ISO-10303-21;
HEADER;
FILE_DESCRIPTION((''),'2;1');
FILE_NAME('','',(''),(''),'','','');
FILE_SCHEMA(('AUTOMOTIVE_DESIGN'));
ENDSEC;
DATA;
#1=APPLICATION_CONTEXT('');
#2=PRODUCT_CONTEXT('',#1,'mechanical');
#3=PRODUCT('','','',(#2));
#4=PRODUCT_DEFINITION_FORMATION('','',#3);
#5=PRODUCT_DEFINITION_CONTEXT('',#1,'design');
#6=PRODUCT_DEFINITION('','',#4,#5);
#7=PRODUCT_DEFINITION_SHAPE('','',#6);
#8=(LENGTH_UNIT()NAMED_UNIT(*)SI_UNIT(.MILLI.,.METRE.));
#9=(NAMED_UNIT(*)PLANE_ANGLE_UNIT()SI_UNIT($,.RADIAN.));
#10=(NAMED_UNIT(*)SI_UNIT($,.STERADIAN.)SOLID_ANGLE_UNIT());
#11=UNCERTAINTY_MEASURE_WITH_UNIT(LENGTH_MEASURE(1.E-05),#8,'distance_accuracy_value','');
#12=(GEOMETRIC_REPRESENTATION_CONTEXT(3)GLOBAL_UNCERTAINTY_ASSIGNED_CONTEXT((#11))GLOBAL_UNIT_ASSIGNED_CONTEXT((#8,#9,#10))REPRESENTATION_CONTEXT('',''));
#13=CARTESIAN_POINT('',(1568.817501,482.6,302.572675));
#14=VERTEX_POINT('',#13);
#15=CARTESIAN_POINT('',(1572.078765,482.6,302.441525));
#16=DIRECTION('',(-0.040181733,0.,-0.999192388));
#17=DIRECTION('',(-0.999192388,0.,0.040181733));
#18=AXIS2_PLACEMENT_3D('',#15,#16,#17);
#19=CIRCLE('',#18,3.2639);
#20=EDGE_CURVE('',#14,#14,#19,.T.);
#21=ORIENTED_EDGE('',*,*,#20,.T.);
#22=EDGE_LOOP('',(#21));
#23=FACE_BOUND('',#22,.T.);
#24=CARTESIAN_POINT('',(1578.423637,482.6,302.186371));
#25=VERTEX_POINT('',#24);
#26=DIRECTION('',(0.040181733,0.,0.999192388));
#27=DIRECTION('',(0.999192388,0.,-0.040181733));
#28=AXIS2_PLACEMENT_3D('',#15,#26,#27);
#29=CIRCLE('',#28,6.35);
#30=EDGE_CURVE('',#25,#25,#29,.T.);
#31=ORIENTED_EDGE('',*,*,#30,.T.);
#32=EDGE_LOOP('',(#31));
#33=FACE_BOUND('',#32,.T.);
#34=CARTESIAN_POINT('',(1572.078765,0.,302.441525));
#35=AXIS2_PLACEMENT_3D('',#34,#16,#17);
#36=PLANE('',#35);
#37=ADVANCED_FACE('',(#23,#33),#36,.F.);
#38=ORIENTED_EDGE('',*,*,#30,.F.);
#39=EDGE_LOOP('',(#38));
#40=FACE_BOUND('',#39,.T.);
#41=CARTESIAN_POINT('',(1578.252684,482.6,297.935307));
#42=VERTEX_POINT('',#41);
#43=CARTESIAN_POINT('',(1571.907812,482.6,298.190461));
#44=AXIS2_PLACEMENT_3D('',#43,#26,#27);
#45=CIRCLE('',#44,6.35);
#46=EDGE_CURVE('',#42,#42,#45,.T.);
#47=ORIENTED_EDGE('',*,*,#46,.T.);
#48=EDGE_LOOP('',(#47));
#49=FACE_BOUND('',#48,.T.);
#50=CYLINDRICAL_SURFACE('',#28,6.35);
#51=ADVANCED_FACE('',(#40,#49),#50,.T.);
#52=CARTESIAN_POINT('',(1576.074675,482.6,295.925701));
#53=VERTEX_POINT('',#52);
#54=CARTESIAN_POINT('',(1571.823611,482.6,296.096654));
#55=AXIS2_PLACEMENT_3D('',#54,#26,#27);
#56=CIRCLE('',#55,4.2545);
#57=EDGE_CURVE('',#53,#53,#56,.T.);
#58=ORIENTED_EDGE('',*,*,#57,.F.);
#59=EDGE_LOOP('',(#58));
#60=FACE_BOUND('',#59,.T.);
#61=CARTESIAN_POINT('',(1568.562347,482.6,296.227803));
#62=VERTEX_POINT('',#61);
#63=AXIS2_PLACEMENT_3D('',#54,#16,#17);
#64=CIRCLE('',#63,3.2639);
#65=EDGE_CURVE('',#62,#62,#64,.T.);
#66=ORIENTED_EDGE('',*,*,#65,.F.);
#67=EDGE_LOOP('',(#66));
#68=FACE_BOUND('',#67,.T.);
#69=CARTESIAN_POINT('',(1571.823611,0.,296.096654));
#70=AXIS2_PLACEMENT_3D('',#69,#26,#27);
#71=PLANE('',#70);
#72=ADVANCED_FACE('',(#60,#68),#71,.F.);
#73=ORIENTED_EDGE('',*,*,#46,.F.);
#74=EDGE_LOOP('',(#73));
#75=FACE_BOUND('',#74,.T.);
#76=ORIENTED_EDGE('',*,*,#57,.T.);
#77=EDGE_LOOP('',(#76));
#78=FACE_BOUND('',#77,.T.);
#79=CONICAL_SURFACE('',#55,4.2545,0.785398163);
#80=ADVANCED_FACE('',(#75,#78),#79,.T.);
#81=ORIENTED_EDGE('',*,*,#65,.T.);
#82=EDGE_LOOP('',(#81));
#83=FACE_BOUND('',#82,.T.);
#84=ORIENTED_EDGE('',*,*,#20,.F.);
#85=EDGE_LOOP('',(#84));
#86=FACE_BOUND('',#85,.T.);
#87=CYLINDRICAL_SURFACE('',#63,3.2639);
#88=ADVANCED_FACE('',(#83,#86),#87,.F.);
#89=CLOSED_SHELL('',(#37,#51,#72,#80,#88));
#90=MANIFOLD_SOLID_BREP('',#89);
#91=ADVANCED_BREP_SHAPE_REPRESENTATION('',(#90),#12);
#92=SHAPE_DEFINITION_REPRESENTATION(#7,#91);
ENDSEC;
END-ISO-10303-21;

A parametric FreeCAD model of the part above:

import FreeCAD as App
import Part
import Sketcher
Q = App.Units.Quantity

doc = App.newDocument("Part")
params = doc.addObject("Spreadsheet::Sheet", "Params")
for row, (alias, value) in enumerate([
    ("sketch1_width", "0.25 in"),
    ("revolution_angle", "360 deg"),
    ("sketch2_diameter", "0.257 in"),
    ("hole_diameter", "0.257 in"),
], start=1):
    params.set(f"A{row}", alias)
    params.set(f"B{row}", "=" + value)
    params.setAlias(f"B{row}", alias)

body = doc.addObject("PartDesign::Body", "Body")

# Sketch on an angled plane
sketch1 = body.newObject("Sketcher::SketchObject", "Sketch")
sketch1.Placement = App.Placement(App.Vector(1571.632246, 520.7, 291.338), App.Rotation(App.Vector(-0.040181733, 0, -0.999192388), App.Vector(0, 1, 0), App.Vector(0.999192388, 0, -0.040181733), "ZXY"))
sketch1.addGeometry([
    Part.LineSegment(App.Vector(-6.9, -31.7, 0), App.Vector(-11.1, -31.7, 0)),  # 0
    Part.LineSegment(App.Vector(-11.1, -31.7, 0), App.Vector(-11.1, -38.1, 0)),  # 1
    Part.LineSegment(App.Vector(-11.1, -38.1, 0), App.Vector(-4.8, -38.1, 0)),  # 2
    Part.LineSegment(App.Vector(-4.8, -38.1, 0), App.Vector(-4.8, -33.8, 0)),  # 3
    Part.LineSegment(App.Vector(-4.8, -33.8, 0), App.Vector(-6.9, -31.7, 0)),  # 4
], False)
sketch1.addGeometry(Part.LineSegment(App.Vector(-11.1, -38.1, 0), App.Vector(-4.8, -38.1, 0)), True)  # axis
sketch1.addConstraint([
    Sketcher.Constraint("Coincident", 0, 2, 1, 1),
    Sketcher.Constraint("Coincident", 1, 2, 2, 1),
    Sketcher.Constraint("Coincident", 2, 2, 3, 1),
    Sketcher.Constraint("Coincident", 3, 2, 4, 1),
    Sketcher.Constraint("Coincident", 4, 2, 0, 1),
    Sketcher.Constraint("Horizontal", 0),
    Sketcher.Constraint("Vertical", 1),
    Sketcher.Constraint("Horizontal", 2),
    Sketcher.Constraint("Vertical", 3),
    Sketcher.Constraint("Horizontal", 5),
    Sketcher.Constraint("Coincident", 5, 1, 1, 2),
    Sketcher.Constraint("Vertical", 3, 2, 5, 2),
    Sketcher.Constraint("Equal", 5, 1),
    Sketcher.Constraint("Equal", 0, 3),
    Sketcher.Constraint("DistanceX", 2, 1, 2, 2, Q("0.25 in")),
    Sketcher.Constraint("DistanceY", 1, 2, -1, 1, Q("1.5 in")),
    Sketcher.Constraint("DistanceX", 4, 2, -1, 1, Q("0.27 in")),
    Sketcher.Constraint("DistanceX", 0, 2, 0, 1, Q("0.1675 in")),
])
sketch1.setExpression("Constraints[14]", "Params.sketch1_width")
revolution = body.newObject("PartDesign::Revolution", "Revolution")
revolution.Profile = sketch1
revolution.ReferenceAxis = (sketch1, ["Axis0"])
revolution.setExpression("Angle", "Params.revolution_angle")

# Sketch on an angled plane
sketch2 = body.newObject("Sketcher::SketchObject", "Sketch001")
sketch2.Placement = App.Placement(App.Vector(14.42589, 0, 358.726173), App.Rotation(App.Vector(-0.999192388, 0, 0.040181733), App.Vector(0, 1, 0), App.Vector(-0.040181733, 0, -0.999192388), "ZXY"))
sketch2.addGeometry(Part.Circle(App.Vector(-1558.7, 482.6, 0), App.Vector(0, 0, 1), 3.3), False)
sketch2.addConstraint([
    Sketcher.Constraint("Diameter", 0, Q("0.257 in")),
    Sketcher.Constraint("DistanceY", -1, 1, 0, 3, Q("19 in")),
    Sketcher.Constraint("DistanceX", 0, 3, -1, 1, 1558.656511),
])
sketch2.setExpression("Constraints[0]", "Params.sketch2_diameter")
doc.recompute()
hole = body.newObject("PartDesign::Hole", "Hole")
hole.Profile = sketch2
hole.ThreadType = "None"
hole.setExpression("Diameter", "Params.hole_diameter")
hole.DepthType = "ThroughAll"

doc.recompute()
